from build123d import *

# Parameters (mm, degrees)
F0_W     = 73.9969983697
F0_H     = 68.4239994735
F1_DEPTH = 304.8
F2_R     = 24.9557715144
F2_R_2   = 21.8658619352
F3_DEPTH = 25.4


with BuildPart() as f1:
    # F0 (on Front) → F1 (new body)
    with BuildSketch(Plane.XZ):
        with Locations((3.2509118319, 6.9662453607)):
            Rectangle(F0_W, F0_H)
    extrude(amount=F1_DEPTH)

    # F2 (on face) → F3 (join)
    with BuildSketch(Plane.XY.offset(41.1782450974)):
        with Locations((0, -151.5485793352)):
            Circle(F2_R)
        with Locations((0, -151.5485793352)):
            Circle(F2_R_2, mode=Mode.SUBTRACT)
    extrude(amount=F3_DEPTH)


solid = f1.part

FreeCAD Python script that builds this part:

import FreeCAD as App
import Part
import Sketcher
from FreeCAD import Vector
Q = App.Units.Quantity


def add_polygon(sketch, points):
    """Adds a closed chain of lines whose ends are joined by coincident constraints."""
    first, n = sketch.GeometryCount, len(points)
    for a, b in zip(points, points[1:] + points[:1]):
        sketch.addGeometry(Part.LineSegment(App.Vector(*a, 0), App.Vector(*b, 0)), False)
    for i in range(n):
        sketch.addConstraint(Sketcher.Constraint("Coincident", first + i, 2, first + (i + 1) % n, 1))

doc = App.newDocument("Part")
body = doc.addObject("PartDesign::Body", "Body")

# Sketch on XZ plane
sketch1 = doc.addObject("Sketcher::SketchObject", "Sketch")
body.addObject(sketch1)
sketch1.AttachmentSupport = (doc.XZ_Plane, [""])
sketch1.MapMode = "FlatFace"
add_polygon(sketch1, [(-33.747587, 41.178245), (-33.747587, -27.245754), (40.249411, -27.245754), (40.249411, 41.178245)])  # lines 0-3
sketch1.addConstraint(Sketcher.Constraint("Vertical", 0))
sketch1.addConstraint(Sketcher.Constraint("Horizontal", 1))
sketch1.addConstraint(Sketcher.Constraint("Vertical", 2))
sketch1.addConstraint(Sketcher.Constraint("Horizontal", 3))
sketch1.addConstraint(Sketcher.Constraint("DistanceX", 1, 1, 1, 2, Q("73.996998 mm")))
sketch1.addConstraint(Sketcher.Constraint("DistanceY", 0, 2, 0, 1, Q("68.423999 mm")))
sketch1.addConstraint(Sketcher.Constraint("DistanceX", -1, 1, 1, 2, Q("40.249411 mm")))
sketch1.addConstraint(Sketcher.Constraint("DistanceY", 0, 2, -1, 1, Q("27.245754 mm")))
pad1 = doc.addObject("PartDesign::Pad", "Pad")
body.addObject(pad1)
pad1.Profile = sketch1
pad1.Length = Q("12 in")

# Sketch on XY plane
sketch2 = doc.addObject("Sketcher::SketchObject", "Sketch001")
body.addObject(sketch2)
sketch2.AttachmentSupport = (doc.XY_Plane, [""])
sketch2.MapMode = "FlatFace"
sketch2.AttachmentOffset = App.Placement(Vector(0, 0, 41.178245), App.Rotation())
sketch2.addGeometry(Part.Circle(Vector(0, -151.548579, 0), Vector(0, 0, 1), 24.955772), False)
sketch2.addGeometry(Part.Circle(Vector(0, -151.548579, 0), Vector(0, 0, 1), 21.865862), False)
sketch2.addConstraint(Sketcher.Constraint("Coincident", 1, 3, 0, 3))
sketch2.addConstraint(Sketcher.Constraint("PointOnObject", 0, 3, -2))
sketch2.addConstraint(Sketcher.Constraint("Diameter", 0, Q("49.911543 mm")))
sketch2.addConstraint(Sketcher.Constraint("Diameter", 1, Q("43.731724 mm")))
sketch2.addConstraint(Sketcher.Constraint("DistanceY", 0, 3, -1, 1, Q("151.548579 mm")))
pad2 = doc.addObject("PartDesign::Pad", "Pad001")
body.addObject(pad2)
pad2.Profile = sketch2
pad2.Length = Q("1 in")

doc.recompute()
